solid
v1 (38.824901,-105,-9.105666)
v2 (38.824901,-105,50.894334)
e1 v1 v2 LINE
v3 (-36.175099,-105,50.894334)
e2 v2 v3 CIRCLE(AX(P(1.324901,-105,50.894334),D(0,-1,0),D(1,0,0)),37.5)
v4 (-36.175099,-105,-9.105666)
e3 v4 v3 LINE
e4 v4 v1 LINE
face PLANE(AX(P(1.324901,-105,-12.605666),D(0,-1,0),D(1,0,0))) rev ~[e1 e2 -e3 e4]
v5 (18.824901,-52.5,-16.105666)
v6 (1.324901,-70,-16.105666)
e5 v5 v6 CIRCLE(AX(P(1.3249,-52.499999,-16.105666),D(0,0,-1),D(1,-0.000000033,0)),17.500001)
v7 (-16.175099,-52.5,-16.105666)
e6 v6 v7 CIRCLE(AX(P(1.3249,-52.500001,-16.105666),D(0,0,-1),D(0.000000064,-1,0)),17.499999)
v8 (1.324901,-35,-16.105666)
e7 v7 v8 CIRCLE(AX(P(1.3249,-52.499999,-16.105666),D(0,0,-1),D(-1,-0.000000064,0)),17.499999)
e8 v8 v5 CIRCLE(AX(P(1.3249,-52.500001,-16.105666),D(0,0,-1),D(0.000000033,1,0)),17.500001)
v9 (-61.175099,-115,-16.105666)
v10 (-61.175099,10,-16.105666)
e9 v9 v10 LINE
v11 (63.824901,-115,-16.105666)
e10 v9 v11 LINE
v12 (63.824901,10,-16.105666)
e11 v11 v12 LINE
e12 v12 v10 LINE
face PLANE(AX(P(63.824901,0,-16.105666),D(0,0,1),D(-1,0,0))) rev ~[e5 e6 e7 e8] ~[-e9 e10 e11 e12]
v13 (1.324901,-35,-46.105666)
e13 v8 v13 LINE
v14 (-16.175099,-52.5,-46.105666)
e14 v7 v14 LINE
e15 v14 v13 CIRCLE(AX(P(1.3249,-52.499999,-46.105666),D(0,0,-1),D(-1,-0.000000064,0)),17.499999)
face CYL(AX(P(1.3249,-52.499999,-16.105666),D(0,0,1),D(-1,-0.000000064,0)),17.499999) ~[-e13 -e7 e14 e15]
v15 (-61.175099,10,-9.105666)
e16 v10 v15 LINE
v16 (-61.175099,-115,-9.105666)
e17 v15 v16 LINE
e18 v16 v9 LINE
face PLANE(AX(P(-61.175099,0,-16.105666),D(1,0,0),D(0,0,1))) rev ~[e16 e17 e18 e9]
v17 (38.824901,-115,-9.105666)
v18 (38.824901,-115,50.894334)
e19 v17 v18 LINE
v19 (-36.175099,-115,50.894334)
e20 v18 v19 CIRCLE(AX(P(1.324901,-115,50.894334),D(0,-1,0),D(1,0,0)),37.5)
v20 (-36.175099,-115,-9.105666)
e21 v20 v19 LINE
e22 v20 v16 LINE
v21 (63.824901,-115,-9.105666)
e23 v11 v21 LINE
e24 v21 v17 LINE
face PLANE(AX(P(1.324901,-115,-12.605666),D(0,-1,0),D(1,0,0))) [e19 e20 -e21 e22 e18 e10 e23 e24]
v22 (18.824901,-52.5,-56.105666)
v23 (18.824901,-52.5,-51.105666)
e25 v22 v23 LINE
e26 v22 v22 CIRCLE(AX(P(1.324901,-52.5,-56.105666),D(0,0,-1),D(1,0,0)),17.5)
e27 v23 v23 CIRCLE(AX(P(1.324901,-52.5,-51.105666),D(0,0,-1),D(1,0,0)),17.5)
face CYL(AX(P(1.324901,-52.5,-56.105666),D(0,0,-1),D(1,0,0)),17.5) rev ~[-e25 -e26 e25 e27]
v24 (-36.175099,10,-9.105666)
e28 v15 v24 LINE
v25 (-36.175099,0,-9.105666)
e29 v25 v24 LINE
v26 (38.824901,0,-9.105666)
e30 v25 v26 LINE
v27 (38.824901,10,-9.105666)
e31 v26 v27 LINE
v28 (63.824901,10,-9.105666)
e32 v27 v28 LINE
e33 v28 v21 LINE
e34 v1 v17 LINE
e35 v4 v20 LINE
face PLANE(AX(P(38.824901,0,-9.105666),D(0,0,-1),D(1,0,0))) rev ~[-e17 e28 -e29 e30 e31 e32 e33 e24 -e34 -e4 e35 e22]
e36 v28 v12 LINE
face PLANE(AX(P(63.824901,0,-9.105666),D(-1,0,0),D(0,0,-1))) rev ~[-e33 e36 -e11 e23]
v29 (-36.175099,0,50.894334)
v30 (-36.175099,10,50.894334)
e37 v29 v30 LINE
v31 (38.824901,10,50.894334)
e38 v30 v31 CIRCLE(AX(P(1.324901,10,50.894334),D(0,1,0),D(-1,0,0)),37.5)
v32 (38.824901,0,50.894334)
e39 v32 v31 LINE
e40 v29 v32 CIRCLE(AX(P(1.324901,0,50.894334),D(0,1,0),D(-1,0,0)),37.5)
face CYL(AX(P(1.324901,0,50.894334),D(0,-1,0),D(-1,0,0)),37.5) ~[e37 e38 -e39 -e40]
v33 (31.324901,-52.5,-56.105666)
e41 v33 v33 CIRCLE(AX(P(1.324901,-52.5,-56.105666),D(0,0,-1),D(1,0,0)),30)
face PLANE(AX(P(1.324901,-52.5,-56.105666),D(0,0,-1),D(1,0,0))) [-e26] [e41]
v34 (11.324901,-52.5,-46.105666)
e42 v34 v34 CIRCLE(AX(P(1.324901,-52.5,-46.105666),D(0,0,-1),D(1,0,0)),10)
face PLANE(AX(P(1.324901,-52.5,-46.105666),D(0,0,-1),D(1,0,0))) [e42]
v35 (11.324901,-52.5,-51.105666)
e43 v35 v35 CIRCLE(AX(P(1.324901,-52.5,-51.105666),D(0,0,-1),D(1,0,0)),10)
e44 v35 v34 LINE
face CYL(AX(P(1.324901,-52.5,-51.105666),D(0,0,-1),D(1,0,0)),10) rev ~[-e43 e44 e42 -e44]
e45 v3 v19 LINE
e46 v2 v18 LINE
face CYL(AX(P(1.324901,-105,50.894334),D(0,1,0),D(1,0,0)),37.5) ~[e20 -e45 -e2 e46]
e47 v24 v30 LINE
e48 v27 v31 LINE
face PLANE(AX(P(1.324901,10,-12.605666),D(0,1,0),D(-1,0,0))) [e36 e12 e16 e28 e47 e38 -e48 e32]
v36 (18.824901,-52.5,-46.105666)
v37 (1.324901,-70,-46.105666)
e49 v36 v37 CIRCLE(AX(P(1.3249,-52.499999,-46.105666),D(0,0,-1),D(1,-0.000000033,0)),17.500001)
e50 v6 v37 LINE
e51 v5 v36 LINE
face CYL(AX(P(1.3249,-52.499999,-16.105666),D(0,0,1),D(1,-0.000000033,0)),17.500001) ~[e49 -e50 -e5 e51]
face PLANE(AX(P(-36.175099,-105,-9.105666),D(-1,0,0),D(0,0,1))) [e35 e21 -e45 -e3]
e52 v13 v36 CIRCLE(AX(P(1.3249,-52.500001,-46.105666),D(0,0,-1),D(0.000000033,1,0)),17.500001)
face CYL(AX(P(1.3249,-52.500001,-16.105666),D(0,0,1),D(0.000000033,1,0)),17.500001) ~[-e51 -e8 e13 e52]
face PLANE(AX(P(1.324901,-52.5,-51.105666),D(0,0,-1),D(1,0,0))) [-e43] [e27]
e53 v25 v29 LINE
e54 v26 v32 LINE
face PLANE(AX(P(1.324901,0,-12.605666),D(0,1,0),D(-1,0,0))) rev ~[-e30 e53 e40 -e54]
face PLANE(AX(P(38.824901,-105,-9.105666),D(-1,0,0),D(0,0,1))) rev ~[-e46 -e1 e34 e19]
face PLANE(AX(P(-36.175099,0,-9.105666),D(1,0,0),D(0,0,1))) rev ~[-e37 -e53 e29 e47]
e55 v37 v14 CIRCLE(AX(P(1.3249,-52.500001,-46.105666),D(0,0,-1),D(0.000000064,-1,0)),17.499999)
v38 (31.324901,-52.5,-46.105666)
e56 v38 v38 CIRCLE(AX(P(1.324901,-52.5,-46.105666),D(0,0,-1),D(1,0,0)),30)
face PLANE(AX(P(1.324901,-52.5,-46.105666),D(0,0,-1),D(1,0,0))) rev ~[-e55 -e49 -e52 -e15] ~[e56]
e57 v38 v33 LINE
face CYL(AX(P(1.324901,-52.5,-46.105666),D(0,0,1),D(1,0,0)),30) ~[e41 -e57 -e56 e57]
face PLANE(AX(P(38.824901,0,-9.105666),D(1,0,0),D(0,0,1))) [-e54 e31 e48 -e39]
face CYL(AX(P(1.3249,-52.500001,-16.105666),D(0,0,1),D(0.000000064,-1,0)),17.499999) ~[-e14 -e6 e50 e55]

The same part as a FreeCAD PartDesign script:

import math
import FreeCAD as App
import Part
import Sketcher

V = App.Vector

doc = App.newDocument("Part")
body = doc.addObject("PartDesign::Body", "Body")

# Sketch on XZ plane
sketch1 = body.newObject("Sketcher::SketchObject", "Sketch")
sketch1.AttachmentSupport = (doc.getObject("XZ_Plane"), [""])
sketch1.MapMode = "FlatFace"
sketch1.addGeometry(Part.LineSegment(V(-61.175099, -9.105666, 0), V(-61.175099, -16.105666, 0)), False)
sketch1.addGeometry(Part.LineSegment(V(-61.175099, -16.105666, 0), V(63.824901, -16.105666, 0)), False)
sketch1.addGeometry(Part.LineSegment(V(63.824901, -16.105666, 0), V(63.824901, -9.105666, 0)), False)
sketch1.addGeometry(Part.LineSegment(V(63.824901, -9.105666, 0), V(-61.175099, -9.105666, 0)), False)
sketch1.addConstraint(Sketcher.Constraint("Coincident", 0, 2, 1, 1))
sketch1.addConstraint(Sketcher.Constraint("Coincident", 1, 2, 2, 1))
sketch1.addConstraint(Sketcher.Constraint("Coincident", 2, 2, 3, 1))
sketch1.addConstraint(Sketcher.Constraint("Coincident", 3, 2, 0, 1))
sketch1.addConstraint(Sketcher.Constraint("Vertical", 0))
sketch1.addConstraint(Sketcher.Constraint("Horizontal", 1))
sketch1.addConstraint(Sketcher.Constraint("Vertical", 2))
sketch1.addConstraint(Sketcher.Constraint("Horizontal", 3))
sketch1.addConstraint(Sketcher.Constraint("DistanceX", 1, 1, 1, 2, 125.0))
sketch1.addConstraint(Sketcher.Constraint("DistanceY", 0, 2, 0, 1, 7.0))
sketch1.addConstraint(Sketcher.Constraint("DistanceX", 0, 2, -1, 1, 61.175099))
sketch1.addConstraint(Sketcher.Constraint("DistanceY", 0, 2, -1, 1, 16.105666))
pad1 = body.newObject("PartDesign::Pad", "Pad")
pad1.Profile = sketch1
pad1.Length = 105

# Sketch on XZ plane
sketch2 = body.newObject("Sketcher::SketchObject", "Sketch001")
sketch2.AttachmentSupport = (doc.getObject("XZ_Plane"), [""])
sketch2.MapMode = "FlatFace"
sketch2.AttachmentOffset = App.Placement(V(0, 0, 105), App.Rotation())
sketch2.addGeometry(Part.LineSegment(V(-61.175099, -9.105666, 0), V(-61.175099, -16.105666, 0)), False)
sketch2.addGeometry(Part.LineSegment(V(-61.175099, -16.105666, 0), V(63.824901, -16.105666, 0)), False)
sketch2.addGeometry(Part.LineSegment(V(63.824901, -16.105666, 0), V(63.824901, -9.105666, 0)), False)
sketch2.addGeometry(Part.LineSegment(V(63.824901, -9.105666, 0), V(38.824901, -9.105666, 0)), False)
sketch2.addGeometry(Part.LineSegment(V(38.824901, -9.105666, 0), V(38.824901, 50.894334, 0)), False)
sketch2.addGeometry(Part.ArcOfCircle(Part.Circle(V(1.324901, 50.894334, 0), V(0, 0, 1), 37.5), math.radians(0), math.radians(180)), False)
sketch2.addGeometry(Part.LineSegment(V(-36.175099, 50.894334, 0), V(-36.175099, -9.105666, 0)), False)
sketch2.addGeometry(Part.LineSegment(V(-36.175099, -9.105666, 0), V(-61.175099, -9.105666, 0)), False)
sketch2.addConstraint(Sketcher.Constraint("Coincident", 0, 2, 1, 1))
sketch2.addConstraint(Sketcher.Constraint("Coincident", 1, 2, 2, 1))
sketch2.addConstraint(Sketcher.Constraint("Coincident", 2, 2, 3, 1))
sketch2.addConstraint(Sketcher.Constraint("Coincident", 3, 2, 4, 1))
sketch2.addConstraint(Sketcher.Constraint("Tangent", 4, 2, 5, 1))
sketch2.addConstraint(Sketcher.Constraint("Tangent", 5, 2, 6, 1))
sketch2.addConstraint(Sketcher.Constraint("Coincident", 6, 2, 7, 1))
sketch2.addConstraint(Sketcher.Constraint("Coincident", 7, 2, 0, 1))
sketch2.addConstraint(Sketcher.Constraint("Vertical", 0))
sketch2.addConstraint(Sketcher.Constraint("Horizontal", 1))
sketch2.addConstraint(Sketcher.Constraint("Vertical", 2))
sketch2.addConstraint(Sketcher.Constraint("Horizontal", 3))
sketch2.addConstraint(Sketcher.Constraint("Vertical", 4))
sketch2.addConstraint(Sketcher.Constraint("Vertical", 6))
sketch2.addConstraint(Sketcher.Constraint("Horizontal", 7))
sketch2.addConstraint(Sketcher.Constraint("Horizontal", 3, 2, 6, 2))
sketch2.addConstraint(Sketcher.Constraint("Equal", 3, 7))
sketch2.addConstraint(Sketcher.Constraint("Radius", 5, 37.5))
sketch2.addConstraint(Sketcher.Constraint("DistanceX", 1, 1, 1, 2, 125.0))
sketch2.addConstraint(Sketcher.Constraint("DistanceY", 0, 2, 0, 1, 7.0))
sketch2.addConstraint(Sketcher.Constraint("DistanceY", 4, 1, 4, 2, 60.0))
sketch2.addConstraint(Sketcher.Constraint("DistanceX", -1, 1, 5, 3, 1.324901))
sketch2.addConstraint(Sketcher.Constraint("DistanceY", -1, 1, 5, 3, 50.894334))
pad2 = body.newObject("PartDesign::Pad", "Pad001")
pad2.Profile = sketch2
pad2.Length = 10

# Sketch on XZ plane
sketch3 = body.newObject("Sketcher::SketchObject", "Sketch002")
sketch3.AttachmentSupport = (doc.getObject("XZ_Plane"), [""])
sketch3.MapMode = "FlatFace"
sketch3.addGeometry(Part.LineSegment(V(63.824901, -9.105666, 0), V(63.824901, -16.105666, 0)), False)
sketch3.addGeometry(Part.LineSegment(V(63.824901, -16.105666, 0), V(-61.175099, -16.105666, 0)), False)
sketch3.addGeometry(Part.LineSegment(V(-61.175099, -16.105666, 0), V(-61.175099, -9.105666, 0)), False)
sketch3.addGeometry(Part.LineSegment(V(-61.175099, -9.105666, 0), V(-36.175099, -9.105666, 0)), False)
sketch3.addGeometry(Part.LineSegment(V(-36.175099, -9.105666, 0), V(-36.175099, 50.894334, 0)), False)
sketch3.addGeometry(Part.ArcOfCircle(Part.Circle(V(1.324901, 50.894334, 0), V(0, 0, 1), 37.5), math.radians(0), math.radians(180)), False)
sketch3.addGeometry(Part.LineSegment(V(38.824901, 50.894334, 0), V(38.824901, -9.105666, 0)), False)
sketch3.addGeometry(Part.LineSegment(V(38.824901, -9.105666, 0), V(63.824901, -9.105666, 0)), False)
sketch3.addConstraint(Sketcher.Constraint("Coincident", 0, 2, 1, 1))
sketch3.addConstraint(Sketcher.Constraint("Coincident", 1, 2, 2, 1))
sketch3.addConstraint(Sketcher.Constraint("Coincident", 2, 2, 3, 1))
sketch3.addConstraint(Sketcher.Constraint("Coincident", 3, 2, 4, 1))
sketch3.addConstraint(Sketcher.Constraint("Tangent", 4, 2, 5, 2))
sketch3.addConstraint(Sketcher.Constraint("Tangent", 5, 1, 6, 1))
sketch3.addConstraint(Sketcher.Constraint("Coincident", 6, 2, 7, 1))
sketch3.addConstraint(Sketcher.Constraint("Coincident", 7, 2, 0, 1))
sketch3.addConstraint(Sketcher.Constraint("Vertical", 0))
sketch3.addConstraint(Sketcher.Constraint("Horizontal", 1))
sketch3.addConstraint(Sketcher.Constraint("Vertical", 2))
sketch3.addConstraint(Sketcher.Constraint("Horizontal", 3))
sketch3.addConstraint(Sketcher.Constraint("Vertical", 4))
sketch3.addConstraint(Sketcher.Constraint("Vertical", 6))
sketch3.addConstraint(Sketcher.Constraint("Horizontal", 7))
sketch3.addConstraint(Sketcher.Constraint("Horizontal", 3, 2, 6, 2))
sketch3.addConstraint(Sketcher.Constraint("Equal", 3, 7))
sketch3.addConstraint(Sketcher.Constraint("Radius", 5, 37.5))
sketch3.addConstraint(Sketcher.Constraint("DistanceX", 1, 2, 1, 1, 125.0))
sketch3.addConstraint(Sketcher.Constraint("DistanceY", 0, 2, 0, 1, 7.0))
sketch3.addConstraint(Sketcher.Constraint("DistanceY", 4, 1, 4, 2, 60.0))
sketch3.addConstraint(Sketcher.Constraint("DistanceX", -1, 1, 5, 3, 1.324901))
sketch3.addConstraint(Sketcher.Constraint("DistanceY", -1, 1, 5, 3, 50.894334))
pad3 = body.newObject("PartDesign::Pad", "Pad002")
pad3.Profile = sketch3
pad3.Length = 10
pad3.Reversed = True

# Sketch on XY plane
sketch4 = body.newObject("Sketcher::SketchObject", "Sketch003")
sketch4.AttachmentSupport = (doc.getObject("XY_Plane"), [""])
sketch4.MapMode = "FlatFace"
sketch4.AttachmentOffset = App.Placement(V(0, 0, -16.105666), App.Rotation())
sketch4.addGeometry(Part.ArcOfCircle(Part.Circle(V(1.3249, -52.499999, 0), V(0, 0, 1), 17.500001), math.radians(-89.999998), math.radians(-0.000002)), False)
sketch4.addGeometry(Part.ArcOfCircle(Part.Circle(V(1.3249, -52.500001, 0), V(0, 0, 1), 17.499999), math.radians(179.999996), math.radians(270.000004)), False)
sketch4.addGeometry(Part.ArcOfCircle(Part.Circle(V(1.3249, -52.499999, 0), V(0, 0, 1), 17.499999), math.radians(89.999996), math.radians(180.000004)), False)
sketch4.addGeometry(Part.ArcOfCircle(Part.Circle(V(1.3249, -52.500001, 0), V(0, 0, 1), 17.500001), math.radians(0.000002), math.radians(89.999998)), False)
sketch4.addConstraint(Sketcher.Constraint("Tangent", 0, 1, 1, 2))
sketch4.addConstraint(Sketcher.Constraint("Tangent", 1, 1, 2, 2))
sketch4.addConstraint(Sketcher.Constraint("Tangent", 2, 1, 3, 2))
sketch4.addConstraint(Sketcher.Constraint("Tangent", 3, 1, 0, 2))
sketch4.addConstraint(Sketcher.Constraint("Equal", 0, 1))
sketch4.addConstraint(Sketcher.Constraint("Horizontal", 3, 3, 1, 1))
sketch4.addConstraint(Sketcher.Constraint("Horizontal", 1, 1, 3, 1))
sketch4.addConstraint(Sketcher.Constraint("Vertical", 3, 3, 0, 1))
sketch4.addConstraint(Sketcher.Constraint("Vertical", 0, 1, 2, 1))
sketch4.addConstraint(Sketcher.Constraint("Radius", 0, 17.500001))
sketch4.addConstraint(Sketcher.Constraint("DistanceY", 0, 1, -1, 1, 70.0))
sketch4.addConstraint(Sketcher.Constraint("DistanceX", -1, 1, 0, 3, 1.3249))
pad4 = body.newObject("PartDesign::Pad", "Pad003")
pad4.Profile = sketch4
pad4.Length = 30
pad4.Reversed = True

# Sketch on XY plane
sketch5 = body.newObject("Sketcher::SketchObject", "Sketch004")
sketch5.AttachmentSupport = (doc.getObject("XY_Plane"), [""])
sketch5.MapMode = "FlatFace"
sketch5.AttachmentOffset = App.Placement(V(0, 0, -46.105666), App.Rotation())
sketch5.addGeometry(Part.Circle(V(1.324901, -52.5, 0), V(0, 0, 1), 30), False)
sketch5.addConstraint(Sketcher.Constraint("Diameter", 0, 60.0))
sketch5.addConstraint(Sketcher.Constraint("DistanceY", 0, 3, -1, 1, 52.5))
sketch5.addConstraint(Sketcher.Constraint("DistanceX", -1, 1, 0, 3, 1.324901))
pad5 = body.newObject("PartDesign::Pad", "Pad004")
pad5.Profile = sketch5
pad5.Length = 10
pad5.Reversed = True

# Sketch on XY plane
sketch6 = body.newObject("Sketcher::SketchObject", "Sketch005")
sketch6.AttachmentSupport = (doc.getObject("XY_Plane"), [""])
sketch6.MapMode = "FlatFace"
sketch6.AttachmentOffset = App.Placement(V(0, 0, -56.105666), App.Rotation())
sketch6.addGeometry(Part.Circle(V(1.324901, -52.5, 0), V(0, 0, 1), 17.5), False)
sketch6.addConstraint(Sketcher.Constraint("Diameter", 0, 35.0))
sketch6.addConstraint(Sketcher.Constraint("DistanceY", 0, 3, -1, 1, 52.5))
sketch6.addConstraint(Sketcher.Constraint("DistanceX", -1, 1, 0, 3, 1.324901))
pocket1 = body.newObject("PartDesign::Pocket", "Pocket")
pocket1.Profile = sketch6
pocket1.Length = 5
pocket1.Reversed = True

# Sketch on XY plane
sketch7 = body.newObject("Sketcher::SketchObject", "Sketch006")
sketch7.AttachmentSupport = (doc.getObject("XY_Plane"), [""])
sketch7.MapMode = "FlatFace"
sketch7.AttachmentOffset = App.Placement(V(0, 0, -51.105666), App.Rotation())
sketch7.addGeometry(Part.Circle(V(1.324901, -52.5, 0), V(0, 0, 1), 10), False)
sketch7.addConstraint(Sketcher.Constraint("Diameter", 0, 20.0))
sketch7.addConstraint(Sketcher.Constraint("DistanceY", 0, 3, -1, 1, 52.5))
sketch7.addConstraint(Sketcher.Constraint("DistanceX", -1, 1, 0, 3, 1.324901))
pocket2 = body.newObject("PartDesign::Pocket", "Pocket001")
pocket2.Profile = sketch7
pocket2.Length = 5
pocket2.Reversed = True

doc.recompute()
